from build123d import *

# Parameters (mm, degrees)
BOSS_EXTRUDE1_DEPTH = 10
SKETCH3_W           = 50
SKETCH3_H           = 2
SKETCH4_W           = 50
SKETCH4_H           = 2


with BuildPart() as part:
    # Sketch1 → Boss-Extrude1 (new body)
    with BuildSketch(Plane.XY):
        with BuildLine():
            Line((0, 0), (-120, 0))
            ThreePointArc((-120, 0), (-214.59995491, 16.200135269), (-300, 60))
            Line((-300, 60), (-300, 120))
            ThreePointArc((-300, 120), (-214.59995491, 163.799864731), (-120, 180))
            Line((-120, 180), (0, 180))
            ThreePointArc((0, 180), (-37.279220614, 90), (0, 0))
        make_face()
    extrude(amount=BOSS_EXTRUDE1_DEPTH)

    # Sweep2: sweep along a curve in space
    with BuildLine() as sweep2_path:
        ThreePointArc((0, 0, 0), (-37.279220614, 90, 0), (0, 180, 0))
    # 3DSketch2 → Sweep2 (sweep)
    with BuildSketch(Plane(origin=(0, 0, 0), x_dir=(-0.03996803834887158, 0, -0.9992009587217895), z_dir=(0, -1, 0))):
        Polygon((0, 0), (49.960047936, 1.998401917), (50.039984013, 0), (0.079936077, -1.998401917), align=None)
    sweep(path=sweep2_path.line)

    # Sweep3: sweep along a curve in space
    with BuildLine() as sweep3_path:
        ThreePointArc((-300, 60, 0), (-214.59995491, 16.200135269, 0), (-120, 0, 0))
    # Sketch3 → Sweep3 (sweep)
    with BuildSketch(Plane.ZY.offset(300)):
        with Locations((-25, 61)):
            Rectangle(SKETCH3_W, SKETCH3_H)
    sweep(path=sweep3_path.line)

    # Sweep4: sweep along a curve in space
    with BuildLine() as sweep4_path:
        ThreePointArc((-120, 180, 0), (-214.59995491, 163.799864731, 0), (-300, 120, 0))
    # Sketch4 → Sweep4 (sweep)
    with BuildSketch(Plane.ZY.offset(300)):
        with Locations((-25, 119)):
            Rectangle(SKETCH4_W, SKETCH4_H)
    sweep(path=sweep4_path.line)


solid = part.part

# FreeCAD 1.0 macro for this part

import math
import FreeCAD as App
import Part
import Sketcher
Q = App.Units.Quantity


def add_polygon(sketch, points):
    """Adds a closed chain of lines whose ends are joined by coincident constraints."""
    first, n = sketch.GeometryCount, len(points)
    for a, b in zip(points, points[1:] + points[:1]):
        sketch.addGeometry(Part.LineSegment(App.Vector(*a, 0), App.Vector(*b, 0)), False)
    for i in range(n):
        sketch.addConstraint(Sketcher.Constraint("Coincident", first + i, 2, first + (i + 1) % n, 1))

doc = App.newDocument("Part")
body = doc.addObject("PartDesign::Body", "Body")

sketch1 = doc.addObject("Sketcher::SketchObject", "Sketch")
body.addObject(sketch1)
sketch1.AttachmentSupport = (doc.XY_Plane, [""])
sketch1.MapMode = "FlatFace"
sketch1.addGeometry(Part.LineSegment(App.Vector(-120, 0, 0), App.Vector(0, 0, 0)), False)
sketch1.addGeometry(Part.ArcOfCircle(Part.Circle(App.Vector(90, 90, 0), App.Vector(0, 0, 1), 127), math.radians(135), math.radians(225)), False)
sketch1.addGeometry(Part.LineSegment(App.Vector(0, 180, 0), App.Vector(-120, 180, 0)), False)
sketch1.addGeometry(Part.ArcOfCircle(Part.Circle(App.Vector(-114, -137, 0), App.Vector(0, 0, 1), 317), math.radians(91), math.radians(126)), False)
sketch1.addGeometry(Part.LineSegment(App.Vector(-300, 120, 0), App.Vector(-300, 60, 0)), False)
sketch1.addGeometry(Part.ArcOfCircle(Part.Circle(App.Vector(-114, 317, 0), App.Vector(0, 0, 1), 317), math.radians(-126), math.radians(-91)), False)
sketch1.addConstraint(Sketcher.Constraint("Coincident", 0, 2, 1, 2))
sketch1.addConstraint(Sketcher.Constraint("Coincident", 1, 1, 2, 1))
sketch1.addConstraint(Sketcher.Constraint("Coincident", 2, 2, 3, 1))
sketch1.addConstraint(Sketcher.Constraint("Coincident", 3, 2, 4, 1))
sketch1.addConstraint(Sketcher.Constraint("Coincident", 4, 2, 5, 1))
sketch1.addConstraint(Sketcher.Constraint("Coincident", 5, 2, 0, 1))
sketch1.addConstraint(Sketcher.Constraint("Horizontal", 0))
sketch1.addConstraint(Sketcher.Constraint("Horizontal", 2))
sketch1.addConstraint(Sketcher.Constraint("Vertical", 4))
sketch1.addConstraint(Sketcher.Constraint("Coincident", 0, 2, -1, 1))
sketch1.addConstraint(Sketcher.Constraint("Equal", 3, 5))
sketch1.addConstraint(Sketcher.Constraint("PointOnObject", 1, 1, -2))
sketch1.addConstraint(Sketcher.Constraint("Vertical", 3, 3, 5, 3))
sketch1.addConstraint(Sketcher.Constraint("Vertical", 2, 2, 5, 2))
sketch1.addConstraint(Sketcher.Constraint("DistanceX", 0, 1, 0, 2, Q("120 mm")))
sketch1.addConstraint(Sketcher.Constraint("DistanceY", 4, 2, 4, 1, Q("60 mm")))
sketch1.addConstraint(Sketcher.Constraint("DistanceX", -1, 1, 1, 3, Q("90 mm")))
sketch1.addConstraint(Sketcher.Constraint("DistanceY", -1, 1, 1, 3, Q("90 mm")))
sketch1.addConstraint(Sketcher.Constraint("DistanceX", 4, 2, -1, 1, Q("300 mm")))
sketch1.addConstraint(Sketcher.Constraint("Radius", 3, Q("316.629449 mm")))
pad1 = doc.addObject("PartDesign::Pad", "Pad")
body.addObject(pad1)
pad1.Profile = sketch1
pad1.Length = 10

sketch2 = doc.addObject("Sketcher::SketchObject", "Sketch001")
body.addObject(sketch2)
sketch2.AttachmentSupport = (doc.XZ_Plane, [""])
sketch2.MapMode = "FlatFace"
add_polygon(sketch2, [(0, -50), (0, 0), (-2, 0), (-2, -50)])
sketch2.addConstraint(Sketcher.Constraint("Vertical", 0))
sketch2.addConstraint(Sketcher.Constraint("Horizontal", 1))
sketch2.addConstraint(Sketcher.Constraint("Vertical", 2))
sketch2.addConstraint(Sketcher.Constraint("Horizontal", 3))
sketch2.addConstraint(Sketcher.Constraint("Coincident", 0, 2, -1, 1))
sketch2.addConstraint(Sketcher.Constraint("DistanceX", 1, 2, 1, 1, Q("2 mm")))
sketch2.addConstraint(Sketcher.Constraint("DistanceY", 0, 1, 0, 2, Q("50 mm")))

sketch3 = doc.addObject("Sketcher::SketchObject", "Sketch002")
body.addObject(sketch3)
sketch3.AttachmentSupport = (doc.XY_Plane, [""])
sketch3.MapMode = "FlatFace"
sketch3.addGeometry(Part.ArcOfCircle(Part.Circle(App.Vector(90, 90, 0), App.Vector(0, 0, 1), 127), math.radians(135), math.radians(225)), False)
sketch3.addConstraint(Sketcher.Constraint("Coincident", 0, 2, -1, 1))
sketch3.addConstraint(Sketcher.Constraint("PointOnObject", 0, 1, -2))
sketch3.addConstraint(Sketcher.Constraint("DistanceX", -1, 1, 0, 3, Q("90 mm")))
sketch3.addConstraint(Sketcher.Constraint("DistanceY", -1, 1, 0, 3, Q("90 mm")))
doc.recompute()

additivepipe = doc.addObject("PartDesign::AdditivePipe", "AdditivePipe")
body.addObject(additivepipe)
additivepipe.Profile = sketch2
additivepipe.Spine = (sketch3, ["Edge1"])

sketch4 = doc.addObject("Sketcher::SketchObject", "Sketch003")
body.addObject(sketch4)
sketch4.AttachmentSupport = (doc.YZ_Plane, [""])
sketch4.MapMode = "FlatFace"
sketch4.AttachmentOffset = App.Placement(App.Vector(0, 0, -300), App.Rotation())
add_polygon(sketch4, [(62, -50), (60, -50), (60, 0), (62, 0)])
sketch4.addConstraint(Sketcher.Constraint("Horizontal", 0))
sketch4.addConstraint(Sketcher.Constraint("Vertical", 1))
sketch4.addConstraint(Sketcher.Constraint("Horizontal", 2))
sketch4.addConstraint(Sketcher.Constraint("Vertical", 3))
sketch4.addConstraint(Sketcher.Constraint("PointOnObject", 1, 2, -1))
sketch4.addConstraint(Sketcher.Constraint("DistanceX", 0, 2, 0, 1, Q("2 mm")))
sketch4.addConstraint(Sketcher.Constraint("DistanceY", 1, 1, 1, 2, Q("50 mm")))
sketch4.addConstraint(Sketcher.Constraint("DistanceX", -1, 1, 0, 2, Q("60 mm")))

sketch5 = doc.addObject("Sketcher::SketchObject", "Sketch004")
body.addObject(sketch5)
sketch5.AttachmentSupport = (doc.XY_Plane, [""])
sketch5.MapMode = "FlatFace"
sketch5.addGeometry(Part.ArcOfCircle(Part.Circle(App.Vector(-114, 317, 0), App.Vector(0, 0, 1), 317), math.radians(-126), math.radians(-91)), False)
sketch5.addConstraint(Sketcher.Constraint("PointOnObject", 0, 2, -1))
sketch5.addConstraint(Sketcher.Constraint("DistanceX", 0, 1, -1, 1, Q("300 mm")))
sketch5.addConstraint(Sketcher.Constraint("DistanceY", -1, 1, 0, 1, Q("60 mm")))
sketch5.addConstraint(Sketcher.Constraint("DistanceX", 0, 2, -1, 1, Q("120 mm")))
sketch5.addConstraint(Sketcher.Constraint("Radius", 0, Q("316.629449 mm")))
doc.recompute()

additivepipe2 = doc.addObject("PartDesign::AdditivePipe", "AdditivePipe001")
body.addObject(additivepipe2)
additivepipe2.Profile = sketch4
additivepipe2.Spine = (sketch5, ["Edge1"])

sketch6 = doc.addObject("Sketcher::SketchObject", "Sketch005")
body.addObject(sketch6)
sketch6.AttachmentSupport = (doc.YZ_Plane, [""])
sketch6.MapMode = "FlatFace"
sketch6.AttachmentOffset = App.Placement(App.Vector(0, 0, -300), App.Rotation())
add_polygon(sketch6, [(120, -50), (118, -50), (118, 0), (120, 0)])
sketch6.addConstraint(Sketcher.Constraint("Horizontal", 0))
sketch6.addConstraint(Sketcher.Constraint("Vertical", 1))
sketch6.addConstraint(Sketcher.Constraint("Horizontal", 2))
sketch6.addConstraint(Sketcher.Constraint("Vertical", 3))
sketch6.addConstraint(Sketcher.Constraint("PointOnObject", 1, 2, -1))
sketch6.addConstraint(Sketcher.Constraint("DistanceX", 0, 2, 0, 1, Q("2 mm")))
sketch6.addConstraint(Sketcher.Constraint("DistanceY", 1, 1, 1, 2, Q("50 mm")))
sketch6.addConstraint(Sketcher.Constraint("DistanceX", -1, 1, 0, 2, Q("118 mm")))

sketch7 = doc.addObject("Sketcher::SketchObject", "Sketch006")
body.addObject(sketch7)
sketch7.AttachmentSupport = (doc.XY_Plane, [""])
sketch7.MapMode = "FlatFace"
sketch7.addGeometry(Part.ArcOfCircle(Part.Circle(App.Vector(-114, -137, 0), App.Vector(0, 0, 1), 317), math.radians(91), math.radians(126)), False)
sketch7.addConstraint(Sketcher.Constraint("DistanceX", 0, 1, -1, 1, Q("120 mm")))
sketch7.addConstraint(Sketcher.Constraint("DistanceY", -1, 1, 0, 1, Q("180 mm")))
sketch7.addConstraint(Sketcher.Constraint("DistanceX", 0, 2, -1, 1, Q("300 mm")))
sketch7.addConstraint(Sketcher.Constraint("DistanceY", -1, 1, 0, 2, Q("120 mm")))
sketch7.addConstraint(Sketcher.Constraint("Radius", 0, Q("316.629449 mm")))
doc.recompute()

additivepipe3 = doc.addObject("PartDesign::AdditivePipe", "AdditivePipe002")
body.addObject(additivepipe3)
additivepipe3.Profile = sketch6
additivepipe3.Spine = (sketch7, ["Edge1"])

doc.recompute()
